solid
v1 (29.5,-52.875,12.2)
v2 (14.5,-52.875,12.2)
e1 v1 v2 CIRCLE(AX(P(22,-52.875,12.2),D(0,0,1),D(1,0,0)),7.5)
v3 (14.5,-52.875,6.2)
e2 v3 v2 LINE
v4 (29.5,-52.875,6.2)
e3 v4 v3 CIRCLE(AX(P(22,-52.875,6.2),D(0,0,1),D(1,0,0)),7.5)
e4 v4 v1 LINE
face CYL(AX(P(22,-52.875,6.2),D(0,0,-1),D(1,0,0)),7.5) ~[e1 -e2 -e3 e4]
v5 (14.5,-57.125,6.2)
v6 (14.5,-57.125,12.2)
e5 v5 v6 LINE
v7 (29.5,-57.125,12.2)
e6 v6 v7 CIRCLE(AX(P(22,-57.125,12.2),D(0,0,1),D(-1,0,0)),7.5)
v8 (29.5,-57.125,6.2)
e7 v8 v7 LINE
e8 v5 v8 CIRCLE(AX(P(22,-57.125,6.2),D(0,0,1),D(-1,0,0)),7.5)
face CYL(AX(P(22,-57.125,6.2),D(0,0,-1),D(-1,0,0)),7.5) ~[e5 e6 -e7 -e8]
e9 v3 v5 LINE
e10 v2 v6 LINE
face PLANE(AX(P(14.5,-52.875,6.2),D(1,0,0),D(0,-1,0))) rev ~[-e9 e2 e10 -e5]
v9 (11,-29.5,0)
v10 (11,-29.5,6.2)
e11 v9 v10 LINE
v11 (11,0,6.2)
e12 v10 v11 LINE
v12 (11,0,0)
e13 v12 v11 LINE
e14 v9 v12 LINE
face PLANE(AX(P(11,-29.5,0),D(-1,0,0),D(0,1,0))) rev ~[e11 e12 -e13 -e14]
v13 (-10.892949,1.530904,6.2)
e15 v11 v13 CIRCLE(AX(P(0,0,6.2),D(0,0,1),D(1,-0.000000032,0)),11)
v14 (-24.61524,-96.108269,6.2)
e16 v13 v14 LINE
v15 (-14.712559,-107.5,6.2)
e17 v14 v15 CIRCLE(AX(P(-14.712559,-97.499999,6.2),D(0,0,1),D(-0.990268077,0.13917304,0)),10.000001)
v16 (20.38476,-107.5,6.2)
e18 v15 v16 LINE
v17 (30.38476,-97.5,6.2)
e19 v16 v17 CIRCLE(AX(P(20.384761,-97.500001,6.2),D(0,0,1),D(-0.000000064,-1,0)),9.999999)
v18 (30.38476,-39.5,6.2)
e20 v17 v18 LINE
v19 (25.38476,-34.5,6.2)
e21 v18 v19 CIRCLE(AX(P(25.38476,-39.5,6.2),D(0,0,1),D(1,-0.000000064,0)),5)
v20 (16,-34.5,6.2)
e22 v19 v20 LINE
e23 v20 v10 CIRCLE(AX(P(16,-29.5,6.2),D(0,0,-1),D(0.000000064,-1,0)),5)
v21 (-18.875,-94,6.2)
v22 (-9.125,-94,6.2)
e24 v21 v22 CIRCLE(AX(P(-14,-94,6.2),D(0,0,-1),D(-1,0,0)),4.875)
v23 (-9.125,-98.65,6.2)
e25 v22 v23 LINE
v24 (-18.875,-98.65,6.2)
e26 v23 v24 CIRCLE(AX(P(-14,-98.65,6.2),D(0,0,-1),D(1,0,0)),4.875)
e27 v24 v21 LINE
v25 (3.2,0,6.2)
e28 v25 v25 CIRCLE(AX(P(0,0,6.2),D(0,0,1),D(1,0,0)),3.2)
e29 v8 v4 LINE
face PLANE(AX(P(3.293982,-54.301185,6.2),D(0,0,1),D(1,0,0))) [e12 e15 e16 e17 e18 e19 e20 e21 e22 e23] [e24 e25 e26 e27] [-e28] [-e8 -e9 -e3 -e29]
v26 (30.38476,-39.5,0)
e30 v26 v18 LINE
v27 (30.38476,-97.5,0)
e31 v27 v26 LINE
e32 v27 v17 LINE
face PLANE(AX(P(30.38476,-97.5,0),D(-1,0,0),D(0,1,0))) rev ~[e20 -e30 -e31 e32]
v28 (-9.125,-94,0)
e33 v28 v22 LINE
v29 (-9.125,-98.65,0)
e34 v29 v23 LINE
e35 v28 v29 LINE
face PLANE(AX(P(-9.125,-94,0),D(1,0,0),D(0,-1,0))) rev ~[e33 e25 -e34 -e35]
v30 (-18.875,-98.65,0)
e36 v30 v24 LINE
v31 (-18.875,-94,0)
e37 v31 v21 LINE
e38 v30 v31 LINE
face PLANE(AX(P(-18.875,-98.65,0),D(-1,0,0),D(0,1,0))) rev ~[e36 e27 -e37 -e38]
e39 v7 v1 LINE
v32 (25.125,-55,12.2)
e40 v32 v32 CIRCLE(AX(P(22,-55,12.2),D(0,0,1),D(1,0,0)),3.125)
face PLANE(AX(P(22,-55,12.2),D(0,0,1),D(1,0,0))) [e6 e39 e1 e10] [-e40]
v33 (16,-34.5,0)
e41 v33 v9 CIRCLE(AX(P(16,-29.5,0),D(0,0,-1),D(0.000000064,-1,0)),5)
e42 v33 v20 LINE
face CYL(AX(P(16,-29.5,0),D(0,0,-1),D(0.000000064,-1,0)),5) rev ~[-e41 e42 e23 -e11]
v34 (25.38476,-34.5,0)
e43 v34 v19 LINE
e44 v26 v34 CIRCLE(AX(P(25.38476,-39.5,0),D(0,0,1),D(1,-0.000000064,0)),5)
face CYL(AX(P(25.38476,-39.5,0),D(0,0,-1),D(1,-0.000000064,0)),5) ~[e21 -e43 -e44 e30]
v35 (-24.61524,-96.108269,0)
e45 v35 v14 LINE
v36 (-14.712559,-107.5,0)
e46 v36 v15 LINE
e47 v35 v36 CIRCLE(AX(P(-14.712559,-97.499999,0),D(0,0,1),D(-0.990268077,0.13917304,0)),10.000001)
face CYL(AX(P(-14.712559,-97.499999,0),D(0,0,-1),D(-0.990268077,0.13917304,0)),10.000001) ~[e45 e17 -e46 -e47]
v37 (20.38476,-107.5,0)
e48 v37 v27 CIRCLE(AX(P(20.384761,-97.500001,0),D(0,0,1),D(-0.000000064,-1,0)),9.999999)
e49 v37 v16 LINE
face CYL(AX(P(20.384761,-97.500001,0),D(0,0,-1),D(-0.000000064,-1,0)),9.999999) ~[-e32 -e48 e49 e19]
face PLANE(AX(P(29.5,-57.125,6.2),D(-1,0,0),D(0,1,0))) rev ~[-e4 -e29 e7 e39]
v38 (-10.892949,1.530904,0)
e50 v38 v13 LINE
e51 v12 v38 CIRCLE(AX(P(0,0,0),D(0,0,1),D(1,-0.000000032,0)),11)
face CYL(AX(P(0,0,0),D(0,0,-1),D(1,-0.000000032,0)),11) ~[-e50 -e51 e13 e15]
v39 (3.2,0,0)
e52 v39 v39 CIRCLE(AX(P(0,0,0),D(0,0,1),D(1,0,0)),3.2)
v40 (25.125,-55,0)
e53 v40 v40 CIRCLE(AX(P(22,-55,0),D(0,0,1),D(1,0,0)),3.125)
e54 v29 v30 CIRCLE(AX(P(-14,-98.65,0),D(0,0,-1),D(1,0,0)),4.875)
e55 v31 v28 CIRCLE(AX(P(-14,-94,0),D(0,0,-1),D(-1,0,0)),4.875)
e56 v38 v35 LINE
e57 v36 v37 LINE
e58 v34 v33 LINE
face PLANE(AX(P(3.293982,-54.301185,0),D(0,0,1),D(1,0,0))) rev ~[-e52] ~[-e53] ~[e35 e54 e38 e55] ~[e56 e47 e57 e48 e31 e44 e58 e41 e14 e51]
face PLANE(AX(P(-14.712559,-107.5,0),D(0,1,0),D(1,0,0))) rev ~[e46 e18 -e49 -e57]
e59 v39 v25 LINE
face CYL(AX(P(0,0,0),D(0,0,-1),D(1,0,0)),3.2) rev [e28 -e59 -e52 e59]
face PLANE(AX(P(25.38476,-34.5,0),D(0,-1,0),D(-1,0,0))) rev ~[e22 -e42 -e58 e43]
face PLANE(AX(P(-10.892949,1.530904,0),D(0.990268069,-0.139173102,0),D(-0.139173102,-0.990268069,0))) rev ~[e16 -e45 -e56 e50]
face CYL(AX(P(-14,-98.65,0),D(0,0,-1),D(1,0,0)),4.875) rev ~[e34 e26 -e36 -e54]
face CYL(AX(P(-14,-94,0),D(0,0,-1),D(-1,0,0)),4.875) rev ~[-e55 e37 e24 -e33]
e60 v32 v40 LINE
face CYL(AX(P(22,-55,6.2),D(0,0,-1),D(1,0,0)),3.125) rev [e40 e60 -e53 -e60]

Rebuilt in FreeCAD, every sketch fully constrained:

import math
import FreeCAD as App
import Part
import Sketcher

V = App.Vector
Q = App.Units.Quantity

doc = App.newDocument("Part")
body = doc.addObject("PartDesign::Body", "Body")

# Sketch on XY plane
sketch1 = body.newObject("Sketcher::SketchObject", "Sketch")
sketch1.AttachmentSupport = (doc.getObject("XY_Plane"), [""])
sketch1.MapMode = "FlatFace"
sketch1.addGeometry([
    Part.LineSegment(V(11, -29.5, 0), V(11, 0, 0)),  # 0
    Part.ArcOfCircle(Part.Circle(V(0, 0, 0), V(0, 0, 1), 11), math.radians(-0.000002), math.radians(172.000002)),  # 1
    Part.LineSegment(V(-10.892949, 1.530904, 0), V(-24.61524, -96.108269, 0)),  # 2
    Part.ArcOfCircle(Part.Circle(V(-14.712559, -97.499999, 0), V(0, 0, 1), 10.000001), math.radians(172.000004), math.radians(269.999998)),  # 3
    Part.LineSegment(V(-14.712559, -107.5, 0), V(20.38476, -107.5, 0)),  # 4
    Part.ArcOfCircle(Part.Circle(V(20.384761, -97.500001, 0), V(0, 0, 1), 9.999999), math.radians(-90.000004), math.radians(0.000004)),  # 5
    Part.LineSegment(V(30.38476, -97.5, 0), V(30.38476, -39.5, 0)),  # 6
    Part.ArcOfCircle(Part.Circle(V(25.38476, -39.5, 0), V(0, 0, 1), 5), math.radians(-0.000004), math.radians(90.000004)),  # 7
    Part.LineSegment(V(25.38476, -34.5, 0), V(16, -34.5, 0)),  # 8
    Part.ArcOfCircle(Part.Circle(V(16, -29.5, 0), V(0, 0, 1), 5), math.radians(179.999996), math.radians(270.000004)),  # 9
    Part.ArcOfCircle(Part.Circle(V(-14, -98.65, 0), V(0, 0, 1), 4.875), math.radians(180), math.radians(360)),  # 10
    Part.LineSegment(V(-18.875, -98.65, 0), V(-18.875, -94, 0)),  # 11
    Part.ArcOfCircle(Part.Circle(V(-14, -94, 0), V(0, 0, 1), 4.875), math.radians(0), math.radians(180)),  # 12
    Part.LineSegment(V(-9.125, -94, 0), V(-9.125, -98.65, 0)),  # 13
    Part.Circle(V(22, -55, 0), V(0, 0, 1), 3.125),  # 14
    Part.Circle(V(0, 0, 0), V(0, 0, 1), 3.2),  # 15
], False)
sketch1.addConstraint([
    Sketcher.Constraint("Tangent", 0, 2, 1, 1),
    Sketcher.Constraint("Tangent", 1, 2, 2, 1),
    Sketcher.Constraint("Tangent", 2, 2, 3, 1),
    Sketcher.Constraint("Tangent", 3, 2, 4, 1),
    Sketcher.Constraint("Tangent", 4, 2, 5, 1),
    Sketcher.Constraint("Tangent", 5, 2, 6, 1),
    Sketcher.Constraint("Tangent", 6, 2, 7, 1),
    Sketcher.Constraint("Tangent", 7, 2, 8, 1),
    Sketcher.Constraint("Tangent", 8, 2, 9, 2),
    Sketcher.Constraint("Tangent", 9, 1, 0, 1),
    Sketcher.Constraint("Tangent", 10, 1, 11, 1),
    Sketcher.Constraint("Tangent", 11, 2, 12, 2),
    Sketcher.Constraint("Tangent", 12, 1, 13, 1),
    Sketcher.Constraint("Tangent", 13, 2, 10, 2),
    Sketcher.Constraint("Vertical", 0),
    Sketcher.Constraint("Horizontal", 4),
    Sketcher.Constraint("Vertical", 6),
    Sketcher.Constraint("Horizontal", 8),
    Sketcher.Constraint("Vertical", 11),
    Sketcher.Constraint("Vertical", 13),
    Sketcher.Constraint("Coincident", 1, 3, -1, 1),
    Sketcher.Constraint("Coincident", 15, 3, -1, 1),
    Sketcher.Constraint("Equal", 3, 5),
    Sketcher.Constraint("Equal", 7, 9),
    Sketcher.Constraint("Radius", 1, 11.0),
    Sketcher.Constraint("Radius", 3, 10.000001),
    Sketcher.Constraint("Radius", 7, 5.0),
    Sketcher.Constraint("Diameter", 15, 6.4),
    Sketcher.Constraint("Diameter", 14, 6.25),
    Sketcher.Constraint("DistanceY", 6, 1, 6, 2, 58.0),
    Sketcher.Constraint("Angle", 2, Q("-98 deg")),
    Sketcher.Constraint("DistanceY", 0, 1, 0, 2, 29.5),
    Sketcher.Constraint("DistanceX", 10, 3, -1, 1, 14.0),
    Sketcher.Constraint("DistanceY", 12, 3, -1, 1, 94.0),
    Sketcher.Constraint("DistanceX", -1, 1, 14, 3, 22.0),
    Sketcher.Constraint("DistanceY", 14, 3, -1, 1, 55.0),
    Sketcher.Constraint("Radius", 10, 4.875),
    Sketcher.Constraint("DistanceX", 2, 2, 5, 3, 45.000001),
    Sketcher.Constraint("DistanceY", 11, 1, 11, 2, 4.65),
])
pad1 = body.newObject("PartDesign::Pad", "Pad")
pad1.Profile = sketch1
pad1.Length = 6.2

# Sketch on XY plane
sketch2 = body.newObject("Sketcher::SketchObject", "Sketch001")
sketch2.AttachmentSupport = (doc.getObject("XY_Plane"), [""])
sketch2.MapMode = "FlatFace"
sketch2.AttachmentOffset = App.Placement(V(0, 0, 6.2), App.Rotation())
sketch2.addGeometry([
    Part.ArcOfCircle(Part.Circle(V(22, -52.875, 0), V(0, 0, 1), 7.5), math.radians(0), math.radians(180)),  # 0
    Part.LineSegment(V(14.5, -52.875, 0), V(14.5, -57.125, 0)),  # 1
    Part.ArcOfCircle(Part.Circle(V(22, -57.125, 0), V(0, 0, 1), 7.5), math.radians(180), math.radians(360)),  # 2
    Part.LineSegment(V(29.5, -57.125, 0), V(29.5, -52.875, 0)),  # 3
    Part.Circle(V(22, -55, 0), V(0, 0, 1), 3.125),  # 4
], False)
sketch2.addConstraint([
    Sketcher.Constraint("Tangent", 0, 2, 1, 1),
    Sketcher.Constraint("Tangent", 1, 2, 2, 1),
    Sketcher.Constraint("Tangent", 2, 2, 3, 1),
    Sketcher.Constraint("Tangent", 3, 2, 0, 1),
    Sketcher.Constraint("Vertical", 1),
    Sketcher.Constraint("Vertical", 3),
    Sketcher.Constraint("Vertical", 2, 3, 4, 3),
    Sketcher.Constraint("Radius", 0, 7.5),
    Sketcher.Constraint("Diameter", 4, 6.25),
    Sketcher.Constraint("DistanceX", -1, 1, 0, 3, 22.0),
    Sketcher.Constraint("DistanceY", 4, 3, -1, 1, 55.0),
    Sketcher.Constraint("DistanceY", 1, 2, 1, 1, 4.25),
    Sketcher.Constraint("DistanceY", 0, 3, -1, 1, 52.875),
])
pad2 = body.newObject("PartDesign::Pad", "Pad001")
pad2.Profile = sketch2
pad2.Length = 6

doc.recompute()
